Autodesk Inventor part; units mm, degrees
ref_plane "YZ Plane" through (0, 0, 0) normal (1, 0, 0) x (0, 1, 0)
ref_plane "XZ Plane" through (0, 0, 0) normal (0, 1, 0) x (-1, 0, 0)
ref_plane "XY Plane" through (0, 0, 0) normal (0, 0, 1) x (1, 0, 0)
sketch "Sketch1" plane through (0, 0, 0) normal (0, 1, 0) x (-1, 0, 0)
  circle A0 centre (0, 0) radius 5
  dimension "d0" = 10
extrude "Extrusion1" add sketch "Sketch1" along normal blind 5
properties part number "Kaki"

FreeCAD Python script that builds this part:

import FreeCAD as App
import Part
import Sketcher

doc = App.newDocument("Part")
body = doc.addObject("PartDesign::Body", "Body")

# Sketch on XZ plane
sketch1 = body.newObject("Sketcher::SketchObject", "Sketch")
sketch1.AttachmentSupport = (doc.getObject("XZ_Plane"), [""])
sketch1.MapMode = "FlatFace"
sketch1.addGeometry(Part.Circle(App.Vector(0, 0, 0), App.Vector(0, 0, 1), 5), False)
sketch1.addConstraint(Sketcher.Constraint("Coincident", 0, 3, -1, 1))
sketch1.addConstraint(Sketcher.Constraint("Diameter", 0, 10.0))
pad1 = body.newObject("PartDesign::Pad", "Pad")
pad1.Profile = sketch1
pad1.Length = 5
pad1.Reversed = True

doc.recompute()
